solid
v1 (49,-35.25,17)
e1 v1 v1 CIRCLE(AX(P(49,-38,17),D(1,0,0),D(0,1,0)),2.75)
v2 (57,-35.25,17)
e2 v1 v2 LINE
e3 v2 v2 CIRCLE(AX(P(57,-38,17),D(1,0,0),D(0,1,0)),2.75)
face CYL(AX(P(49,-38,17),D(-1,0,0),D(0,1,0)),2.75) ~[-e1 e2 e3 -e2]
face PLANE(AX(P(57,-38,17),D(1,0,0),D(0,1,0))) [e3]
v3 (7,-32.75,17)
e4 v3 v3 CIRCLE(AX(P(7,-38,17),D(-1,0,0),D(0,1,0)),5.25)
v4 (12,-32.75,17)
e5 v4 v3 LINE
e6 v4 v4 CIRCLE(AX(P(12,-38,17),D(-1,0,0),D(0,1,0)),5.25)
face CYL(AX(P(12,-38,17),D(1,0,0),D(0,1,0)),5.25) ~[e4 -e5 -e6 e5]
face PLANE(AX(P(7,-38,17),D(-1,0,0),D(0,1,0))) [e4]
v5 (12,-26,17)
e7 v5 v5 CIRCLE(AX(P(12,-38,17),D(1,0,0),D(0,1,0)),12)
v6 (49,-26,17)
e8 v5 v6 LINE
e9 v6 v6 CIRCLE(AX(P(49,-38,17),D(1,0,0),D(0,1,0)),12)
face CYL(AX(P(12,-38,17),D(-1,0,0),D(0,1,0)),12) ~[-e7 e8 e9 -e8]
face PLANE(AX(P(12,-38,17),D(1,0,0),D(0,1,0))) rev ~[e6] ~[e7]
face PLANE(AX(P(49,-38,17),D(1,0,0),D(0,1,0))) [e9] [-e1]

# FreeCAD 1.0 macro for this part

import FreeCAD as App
import Part
import Sketcher

V = App.Vector

doc = App.newDocument("Part")
body = doc.addObject("PartDesign::Body", "Body")

sketch1 = body.newObject("Sketcher::SketchObject", "Sketch")
sketch1.AttachmentSupport = (doc.getObject("YZ_Plane"), [""])
sketch1.MapMode = "FlatFace"
sketch1.addGeometry(Part.Circle(V(0, 0, 0), V(0, 0, 1), 12), False)
sketch1.addConstraint([
    Sketcher.Constraint("Coincident", 0, 3, -1, 1),
    Sketcher.Constraint("Diameter", 0, 24.0),
])
pad1 = body.newObject("PartDesign::Pad", "Pad")
pad1.Profile = sketch1
pad1.Length = 37

sketch2 = body.newObject("Sketcher::SketchObject", "Sketch001")
sketch2.AttachmentSupport = (doc.getObject("YZ_Plane"), [""])
sketch2.MapMode = "FlatFace"
sketch2.AttachmentOffset = App.Placement(V(0, 0, 37), App.Rotation())
sketch2.addGeometry(Part.Circle(V(0, 0, 0), V(0, 0, 1), 2.8), False)
sketch2.addConstraint([
    Sketcher.Constraint("Coincident", 0, 3, -1, 1),
    Sketcher.Constraint("Diameter", 0, 5.5),
])
pad2 = body.newObject("PartDesign::Pad", "Pad001")
pad2.Profile = sketch2
pad2.Length = 8

sketch3 = body.newObject("Sketcher::SketchObject", "Sketch002")
sketch3.AttachmentSupport = (doc.getObject("YZ_Plane"), [""])
sketch3.MapMode = "FlatFace"
sketch3.addGeometry(Part.Circle(V(0, 0, 0), V(0, 0, 1), 5), False)
sketch3.addConstraint([
    Sketcher.Constraint("Coincident", 0, 3, -1, 1),
    Sketcher.Constraint("Diameter", 0, 10.5),
])
pad3 = body.newObject("PartDesign::Pad", "Pad002")
pad3.Profile = sketch3
pad3.Length = 5
pad3.Reversed = True
body2 = doc.addObject("PartDesign::Body", "Body001")
doc.recompute()

body.Placement = App.Placement(V(12, -38, 17), App.Rotation(V(0, 0, 1), 0))
boolean = body2.newObject("PartDesign::Boolean", "Boolean")
boolean.Type = "Fuse"
boolean.addObjects([body])

doc.recompute()
